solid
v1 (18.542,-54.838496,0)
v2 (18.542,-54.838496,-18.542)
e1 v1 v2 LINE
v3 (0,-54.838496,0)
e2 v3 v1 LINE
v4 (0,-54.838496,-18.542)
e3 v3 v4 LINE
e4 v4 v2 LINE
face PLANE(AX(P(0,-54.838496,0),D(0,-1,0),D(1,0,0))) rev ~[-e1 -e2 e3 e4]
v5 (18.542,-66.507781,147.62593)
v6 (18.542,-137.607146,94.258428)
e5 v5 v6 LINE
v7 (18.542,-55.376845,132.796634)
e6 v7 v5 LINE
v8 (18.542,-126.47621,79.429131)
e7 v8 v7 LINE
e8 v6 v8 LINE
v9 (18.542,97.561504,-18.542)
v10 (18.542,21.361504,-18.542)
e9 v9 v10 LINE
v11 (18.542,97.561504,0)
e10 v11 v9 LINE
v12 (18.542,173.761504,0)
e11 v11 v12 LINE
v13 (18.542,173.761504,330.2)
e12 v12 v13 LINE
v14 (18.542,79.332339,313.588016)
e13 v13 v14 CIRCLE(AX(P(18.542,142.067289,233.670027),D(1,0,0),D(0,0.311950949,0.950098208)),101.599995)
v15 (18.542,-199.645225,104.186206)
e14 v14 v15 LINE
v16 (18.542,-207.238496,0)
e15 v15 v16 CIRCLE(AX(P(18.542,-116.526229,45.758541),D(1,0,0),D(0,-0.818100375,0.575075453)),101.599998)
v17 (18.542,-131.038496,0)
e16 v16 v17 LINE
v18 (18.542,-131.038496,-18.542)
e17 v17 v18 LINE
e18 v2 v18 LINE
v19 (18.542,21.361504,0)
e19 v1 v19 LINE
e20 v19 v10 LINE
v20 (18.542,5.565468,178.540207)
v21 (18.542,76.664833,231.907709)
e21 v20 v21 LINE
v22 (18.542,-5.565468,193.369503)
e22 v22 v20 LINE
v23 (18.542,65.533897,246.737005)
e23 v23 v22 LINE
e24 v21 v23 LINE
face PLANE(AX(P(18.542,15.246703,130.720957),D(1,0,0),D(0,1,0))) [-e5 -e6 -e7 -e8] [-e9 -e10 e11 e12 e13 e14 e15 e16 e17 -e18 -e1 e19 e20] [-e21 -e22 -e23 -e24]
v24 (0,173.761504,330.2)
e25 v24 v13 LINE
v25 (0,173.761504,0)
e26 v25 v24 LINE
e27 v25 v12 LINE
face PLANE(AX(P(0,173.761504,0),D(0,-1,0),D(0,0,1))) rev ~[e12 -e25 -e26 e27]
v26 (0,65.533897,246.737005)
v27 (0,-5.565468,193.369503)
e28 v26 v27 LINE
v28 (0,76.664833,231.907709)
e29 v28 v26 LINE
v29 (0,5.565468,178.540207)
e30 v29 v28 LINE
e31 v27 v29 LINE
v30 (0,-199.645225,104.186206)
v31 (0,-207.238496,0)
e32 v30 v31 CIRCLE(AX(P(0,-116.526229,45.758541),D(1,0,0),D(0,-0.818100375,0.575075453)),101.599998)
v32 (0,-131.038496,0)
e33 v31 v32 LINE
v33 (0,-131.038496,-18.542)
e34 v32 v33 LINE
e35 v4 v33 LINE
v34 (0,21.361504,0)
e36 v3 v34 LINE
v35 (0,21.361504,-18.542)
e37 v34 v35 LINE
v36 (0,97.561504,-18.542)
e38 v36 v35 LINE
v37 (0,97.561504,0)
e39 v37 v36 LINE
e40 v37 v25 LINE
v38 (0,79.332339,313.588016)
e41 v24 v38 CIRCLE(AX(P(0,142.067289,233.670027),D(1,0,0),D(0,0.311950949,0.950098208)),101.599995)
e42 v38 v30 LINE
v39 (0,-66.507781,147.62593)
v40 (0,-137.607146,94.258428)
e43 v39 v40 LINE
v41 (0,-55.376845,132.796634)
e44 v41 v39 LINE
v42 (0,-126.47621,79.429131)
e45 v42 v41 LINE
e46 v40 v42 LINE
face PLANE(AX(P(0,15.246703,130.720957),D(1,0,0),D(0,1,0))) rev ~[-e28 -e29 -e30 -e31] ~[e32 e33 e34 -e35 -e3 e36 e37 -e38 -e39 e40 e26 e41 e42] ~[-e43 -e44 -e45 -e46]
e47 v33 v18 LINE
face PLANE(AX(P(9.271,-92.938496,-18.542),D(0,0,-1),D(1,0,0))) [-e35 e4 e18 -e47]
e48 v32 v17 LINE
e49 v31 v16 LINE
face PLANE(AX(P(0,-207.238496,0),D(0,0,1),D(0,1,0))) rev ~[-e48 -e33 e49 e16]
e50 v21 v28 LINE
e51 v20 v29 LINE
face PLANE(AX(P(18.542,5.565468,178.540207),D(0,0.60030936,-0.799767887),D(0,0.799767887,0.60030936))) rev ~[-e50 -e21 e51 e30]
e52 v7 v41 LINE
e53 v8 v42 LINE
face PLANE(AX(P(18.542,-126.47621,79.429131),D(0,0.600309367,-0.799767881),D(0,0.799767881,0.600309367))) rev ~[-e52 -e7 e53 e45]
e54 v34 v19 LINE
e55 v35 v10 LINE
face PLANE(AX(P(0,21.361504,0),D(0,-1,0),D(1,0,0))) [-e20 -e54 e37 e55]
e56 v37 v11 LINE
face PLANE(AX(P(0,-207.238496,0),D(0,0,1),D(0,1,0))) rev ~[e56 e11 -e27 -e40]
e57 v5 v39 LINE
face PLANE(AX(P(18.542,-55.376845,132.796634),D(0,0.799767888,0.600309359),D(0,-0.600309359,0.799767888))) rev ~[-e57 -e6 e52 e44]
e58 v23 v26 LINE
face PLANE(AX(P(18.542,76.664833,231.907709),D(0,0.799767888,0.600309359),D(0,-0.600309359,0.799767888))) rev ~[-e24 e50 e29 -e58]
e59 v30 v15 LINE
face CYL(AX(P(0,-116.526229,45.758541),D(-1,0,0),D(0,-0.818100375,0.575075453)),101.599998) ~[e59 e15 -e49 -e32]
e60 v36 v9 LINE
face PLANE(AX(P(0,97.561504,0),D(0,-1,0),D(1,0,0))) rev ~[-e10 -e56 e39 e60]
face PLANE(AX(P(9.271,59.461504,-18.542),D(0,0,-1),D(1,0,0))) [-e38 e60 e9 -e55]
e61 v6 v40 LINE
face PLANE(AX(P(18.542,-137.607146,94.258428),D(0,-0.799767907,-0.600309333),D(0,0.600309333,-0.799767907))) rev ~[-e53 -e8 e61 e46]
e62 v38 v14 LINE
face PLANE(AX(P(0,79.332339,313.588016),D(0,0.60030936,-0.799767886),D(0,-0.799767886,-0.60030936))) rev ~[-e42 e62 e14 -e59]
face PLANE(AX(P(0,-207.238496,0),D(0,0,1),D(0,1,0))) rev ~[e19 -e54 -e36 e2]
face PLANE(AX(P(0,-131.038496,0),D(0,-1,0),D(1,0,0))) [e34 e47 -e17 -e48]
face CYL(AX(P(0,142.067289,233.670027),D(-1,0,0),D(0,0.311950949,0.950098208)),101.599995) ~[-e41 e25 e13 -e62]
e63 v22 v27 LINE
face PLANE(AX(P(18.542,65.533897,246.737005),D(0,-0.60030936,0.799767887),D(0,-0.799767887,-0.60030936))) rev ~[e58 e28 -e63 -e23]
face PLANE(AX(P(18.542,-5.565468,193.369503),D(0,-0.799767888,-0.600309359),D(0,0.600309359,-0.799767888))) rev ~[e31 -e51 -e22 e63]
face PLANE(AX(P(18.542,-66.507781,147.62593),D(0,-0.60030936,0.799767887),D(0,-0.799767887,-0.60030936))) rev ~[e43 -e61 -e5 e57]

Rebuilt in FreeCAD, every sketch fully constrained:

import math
import FreeCAD as App
import Part
import Sketcher
from FreeCAD import Vector
Q = App.Units.Quantity

doc = App.newDocument("Part")
body = doc.addObject("PartDesign::Body", "Body")

sketch1 = body.newObject("Sketcher::SketchObject", "Sketch")
sketch1.AttachmentSupport = (doc.getObject("YZ_Plane"), [""])
sketch1.MapMode = "FlatFace"
sketch1.addGeometry(Part.ArcOfCircle(Part.Circle(Vector(-117, 46, 0), Vector(0, 0, 1), 102), math.radians(145), math.radians(207)), False)
sketch1.addGeometry(Part.LineSegment(Vector(-207, 0, 0), Vector(174, 0, 0)), False)
sketch1.addGeometry(Part.LineSegment(Vector(174, 0, 0), Vector(174, 330, 0)), False)
sketch1.addGeometry(Part.ArcOfCircle(Part.Circle(Vector(142, 234, 0), Vector(0, 0, 1), 102), math.radians(72), math.radians(128)), False)
sketch1.addGeometry(Part.LineSegment(Vector(79, 314, 0), Vector(-200, 104, 0)), False)
sketch1.addConstraint(Sketcher.Constraint("Coincident", 0, 2, 1, 1))
sketch1.addConstraint(Sketcher.Constraint("Coincident", 1, 2, 2, 1))
sketch1.addConstraint(Sketcher.Constraint("Coincident", 2, 2, 3, 1))
sketch1.addConstraint(Sketcher.Constraint("Coincident", 3, 2, 4, 1))
sketch1.addConstraint(Sketcher.Constraint("Coincident", 4, 2, 0, 1))
sketch1.addConstraint(Sketcher.Constraint("Horizontal", 1))
sketch1.addConstraint(Sketcher.Constraint("Vertical", 2))
sketch1.addConstraint(Sketcher.Constraint("PointOnObject", 0, 2, -1))
sketch1.addConstraint(Sketcher.Constraint("Radius", 0, Q("3.9999999 in")))
sketch1.addConstraint(Sketcher.Constraint("DistanceX", 1, 1, 1, 2, Q("15 in")))
sketch1.addConstraint(Sketcher.Constraint("DistanceY", 2, 1, 2, 2, Q("13 in")))
sketch1.addConstraint(Sketcher.Constraint("Radius", 3, 101.599995))
sketch1.addConstraint(Sketcher.Constraint("DistanceX", 0, 3, -1, 1, 116.526229))
sketch1.addConstraint(Sketcher.Constraint("DistanceY", -1, 1, 0, 3, 45.758541))
sketch1.addConstraint(Sketcher.Constraint("DistanceX", -1, 1, 3, 3, 142.067289))
sketch1.addConstraint(Sketcher.Constraint("DistanceX", -1, 1, 3, 2, 79.332339))
sketch1.addConstraint(Sketcher.Constraint("DistanceX", 0, 2, 4, 2, 7.593271))
pad1 = body.newObject("PartDesign::Pad", "Pad")
pad1.Profile = sketch1
pad1.Length = Q("0.73 in")

sketch2 = body.newObject("Sketcher::SketchObject", "Sketch001")
sketch2.AttachmentSupport = (doc.getObject("XY_Plane"), [""])
sketch2.MapMode = "FlatFace"
sketch2.addGeometry(Part.LineSegment(Vector(0, 21, 0), Vector(0, 98, 0)), False)
sketch2.addGeometry(Part.LineSegment(Vector(0, 98, 0), Vector(19, 98, 0)), False)
sketch2.addGeometry(Part.LineSegment(Vector(19, 98, 0), Vector(19, 21, 0)), False)
sketch2.addGeometry(Part.LineSegment(Vector(19, 21, 0), Vector(0, 21, 0)), False)
sketch2.addGeometry(Part.LineSegment(Vector(0, -131, 0), Vector(0, -55, 0)), False)
sketch2.addGeometry(Part.LineSegment(Vector(0, -55, 0), Vector(19, -55, 0)), False)
sketch2.addGeometry(Part.LineSegment(Vector(19, -55, 0), Vector(19, -131, 0)), False)
sketch2.addGeometry(Part.LineSegment(Vector(19, -131, 0), Vector(0, -131, 0)), False)
sketch2.addConstraint(Sketcher.Constraint("Coincident", 0, 2, 1, 1))
sketch2.addConstraint(Sketcher.Constraint("Coincident", 1, 2, 2, 1))
sketch2.addConstraint(Sketcher.Constraint("Coincident", 2, 2, 3, 1))
sketch2.addConstraint(Sketcher.Constraint("Coincident", 3, 2, 0, 1))
sketch2.addConstraint(Sketcher.Constraint("Coincident", 4, 2, 5, 1))
sketch2.addConstraint(Sketcher.Constraint("Coincident", 5, 2, 6, 1))
sketch2.addConstraint(Sketcher.Constraint("Coincident", 6, 2, 7, 1))
sketch2.addConstraint(Sketcher.Constraint("Coincident", 7, 2, 4, 1))
sketch2.addConstraint(Sketcher.Constraint("Vertical", 0))
sketch2.addConstraint(Sketcher.Constraint("Horizontal", 1))
sketch2.addConstraint(Sketcher.Constraint("Vertical", 2))
sketch2.addConstraint(Sketcher.Constraint("Horizontal", 3))
sketch2.addConstraint(Sketcher.Constraint("Vertical", 4))
sketch2.addConstraint(Sketcher.Constraint("Horizontal", 5))
sketch2.addConstraint(Sketcher.Constraint("Vertical", 6))
sketch2.addConstraint(Sketcher.Constraint("Horizontal", 7))
sketch2.addConstraint(Sketcher.Constraint("PointOnObject", 0, 2, -2))
sketch2.addConstraint(Sketcher.Constraint("PointOnObject", 4, 2, -2))
sketch2.addConstraint(Sketcher.Constraint("Vertical", 2, 2, 5, 2))
sketch2.addConstraint(Sketcher.Constraint("Equal", 2, 4))
sketch2.addConstraint(Sketcher.Constraint("DistanceY", 0, 1, 0, 2, Q("3 in")))
sketch2.addConstraint(Sketcher.Constraint("DistanceY", 4, 2, 3, 2, Q("3 in")))
sketch2.addConstraint(Sketcher.Constraint("DistanceX", 1, 1, 1, 2, Q("0.73 in")))
sketch2.addConstraint(Sketcher.Constraint("DistanceY", -1, 1, 0, 2, 97.561504))
pad2 = body.newObject("PartDesign::Pad", "Pad001")
pad2.Profile = sketch2
pad2.Length = Q("0.73 in")
pad2.Reversed = True

sketch3 = body.newObject("Sketcher::SketchObject", "Sketch002")
sketch3.AttachmentSupport = (doc.getObject("YZ_Plane"), [""])
sketch3.MapMode = "FlatFace"
sketch3.AttachmentOffset = App.Placement(Vector(0, 0, 0.73 * 25.4), App.Rotation())
sketch3.addGeometry(Part.LineSegment(Vector(-6, 193, 0), Vector(6, 179, 0)), False)
sketch3.addGeometry(Part.LineSegment(Vector(6, 179, 0), Vector(77, 232, 0)), False)
sketch3.addGeometry(Part.LineSegment(Vector(77, 232, 0), Vector(66, 247, 0)), False)
sketch3.addGeometry(Part.LineSegment(Vector(66, 247, 0), Vector(-6, 193, 0)), False)
sketch3.addGeometry(Part.LineSegment(Vector(-67, 148, 0), Vector(-138, 94, 0)), False)
sketch3.addGeometry(Part.LineSegment(Vector(-138, 94, 0), Vector(-126, 79, 0)), False)
sketch3.addGeometry(Part.LineSegment(Vector(-126, 79, 0), Vector(-55, 133, 0)), False)
sketch3.addGeometry(Part.LineSegment(Vector(-55, 133, 0), Vector(-67, 148, 0)), False)
sketch3.addConstraint(Sketcher.Constraint("Coincident", 0, 2, 1, 1))
sketch3.addConstraint(Sketcher.Constraint("Coincident", 1, 2, 2, 1))
sketch3.addConstraint(Sketcher.Constraint("Coincident", 2, 2, 3, 1))
sketch3.addConstraint(Sketcher.Constraint("Coincident", 3, 2, 0, 1))
sketch3.addConstraint(Sketcher.Constraint("Coincident", 4, 2, 5, 1))
sketch3.addConstraint(Sketcher.Constraint("Coincident", 5, 2, 6, 1))
sketch3.addConstraint(Sketcher.Constraint("Coincident", 6, 2, 7, 1))
sketch3.addConstraint(Sketcher.Constraint("Coincident", 7, 2, 4, 1))
sketch3.addConstraint(Sketcher.Constraint("Perpendicular", 0, 1))
sketch3.addConstraint(Sketcher.Constraint("Perpendicular", 1, 2))
sketch3.addConstraint(Sketcher.Constraint("Perpendicular", 2, 3))
sketch3.addConstraint(Sketcher.Constraint("Parallel", 3, 4))
sketch3.addConstraint(Sketcher.Constraint("Perpendicular", 4, 5))
sketch3.addConstraint(Sketcher.Constraint("Perpendicular", 5, 6))
sketch3.addConstraint(Sketcher.Constraint("Perpendicular", 6, 7))
sketch3.addConstraint(Sketcher.Constraint("Equal", 3, 4))
sketch3.addConstraint(Sketcher.Constraint("Equal", 2, 5))
sketch3.addConstraint(Sketcher.Constraint("Distance", 1, Q("3.5 in")))
sketch3.addConstraint(Sketcher.Constraint("Distance", 0, Q("0.73 in")))
sketch3.addConstraint(Sketcher.Constraint("DistanceY", 0, 2, 2, 2, 68.196798))
sketch3.addConstraint(Sketcher.Constraint("DistanceY", -1, 1, 1, 2, 231.907709))
sketch3.addConstraint(Sketcher.Constraint("DistanceX", 5, 2, -1, 1, 126.47621))
sketch3.addConstraint(Sketcher.Constraint("DistanceY", -1, 1, 5, 2, 79.429131))
sketch3.addConstraint(Sketcher.Constraint("DistanceX", 4, 2, 1, 2, 214.271979))
pocket1 = body.newObject("PartDesign::Pocket", "Pocket")
pocket1.Profile = sketch3
pocket1.Length = Q("1 in")

doc.recompute()
